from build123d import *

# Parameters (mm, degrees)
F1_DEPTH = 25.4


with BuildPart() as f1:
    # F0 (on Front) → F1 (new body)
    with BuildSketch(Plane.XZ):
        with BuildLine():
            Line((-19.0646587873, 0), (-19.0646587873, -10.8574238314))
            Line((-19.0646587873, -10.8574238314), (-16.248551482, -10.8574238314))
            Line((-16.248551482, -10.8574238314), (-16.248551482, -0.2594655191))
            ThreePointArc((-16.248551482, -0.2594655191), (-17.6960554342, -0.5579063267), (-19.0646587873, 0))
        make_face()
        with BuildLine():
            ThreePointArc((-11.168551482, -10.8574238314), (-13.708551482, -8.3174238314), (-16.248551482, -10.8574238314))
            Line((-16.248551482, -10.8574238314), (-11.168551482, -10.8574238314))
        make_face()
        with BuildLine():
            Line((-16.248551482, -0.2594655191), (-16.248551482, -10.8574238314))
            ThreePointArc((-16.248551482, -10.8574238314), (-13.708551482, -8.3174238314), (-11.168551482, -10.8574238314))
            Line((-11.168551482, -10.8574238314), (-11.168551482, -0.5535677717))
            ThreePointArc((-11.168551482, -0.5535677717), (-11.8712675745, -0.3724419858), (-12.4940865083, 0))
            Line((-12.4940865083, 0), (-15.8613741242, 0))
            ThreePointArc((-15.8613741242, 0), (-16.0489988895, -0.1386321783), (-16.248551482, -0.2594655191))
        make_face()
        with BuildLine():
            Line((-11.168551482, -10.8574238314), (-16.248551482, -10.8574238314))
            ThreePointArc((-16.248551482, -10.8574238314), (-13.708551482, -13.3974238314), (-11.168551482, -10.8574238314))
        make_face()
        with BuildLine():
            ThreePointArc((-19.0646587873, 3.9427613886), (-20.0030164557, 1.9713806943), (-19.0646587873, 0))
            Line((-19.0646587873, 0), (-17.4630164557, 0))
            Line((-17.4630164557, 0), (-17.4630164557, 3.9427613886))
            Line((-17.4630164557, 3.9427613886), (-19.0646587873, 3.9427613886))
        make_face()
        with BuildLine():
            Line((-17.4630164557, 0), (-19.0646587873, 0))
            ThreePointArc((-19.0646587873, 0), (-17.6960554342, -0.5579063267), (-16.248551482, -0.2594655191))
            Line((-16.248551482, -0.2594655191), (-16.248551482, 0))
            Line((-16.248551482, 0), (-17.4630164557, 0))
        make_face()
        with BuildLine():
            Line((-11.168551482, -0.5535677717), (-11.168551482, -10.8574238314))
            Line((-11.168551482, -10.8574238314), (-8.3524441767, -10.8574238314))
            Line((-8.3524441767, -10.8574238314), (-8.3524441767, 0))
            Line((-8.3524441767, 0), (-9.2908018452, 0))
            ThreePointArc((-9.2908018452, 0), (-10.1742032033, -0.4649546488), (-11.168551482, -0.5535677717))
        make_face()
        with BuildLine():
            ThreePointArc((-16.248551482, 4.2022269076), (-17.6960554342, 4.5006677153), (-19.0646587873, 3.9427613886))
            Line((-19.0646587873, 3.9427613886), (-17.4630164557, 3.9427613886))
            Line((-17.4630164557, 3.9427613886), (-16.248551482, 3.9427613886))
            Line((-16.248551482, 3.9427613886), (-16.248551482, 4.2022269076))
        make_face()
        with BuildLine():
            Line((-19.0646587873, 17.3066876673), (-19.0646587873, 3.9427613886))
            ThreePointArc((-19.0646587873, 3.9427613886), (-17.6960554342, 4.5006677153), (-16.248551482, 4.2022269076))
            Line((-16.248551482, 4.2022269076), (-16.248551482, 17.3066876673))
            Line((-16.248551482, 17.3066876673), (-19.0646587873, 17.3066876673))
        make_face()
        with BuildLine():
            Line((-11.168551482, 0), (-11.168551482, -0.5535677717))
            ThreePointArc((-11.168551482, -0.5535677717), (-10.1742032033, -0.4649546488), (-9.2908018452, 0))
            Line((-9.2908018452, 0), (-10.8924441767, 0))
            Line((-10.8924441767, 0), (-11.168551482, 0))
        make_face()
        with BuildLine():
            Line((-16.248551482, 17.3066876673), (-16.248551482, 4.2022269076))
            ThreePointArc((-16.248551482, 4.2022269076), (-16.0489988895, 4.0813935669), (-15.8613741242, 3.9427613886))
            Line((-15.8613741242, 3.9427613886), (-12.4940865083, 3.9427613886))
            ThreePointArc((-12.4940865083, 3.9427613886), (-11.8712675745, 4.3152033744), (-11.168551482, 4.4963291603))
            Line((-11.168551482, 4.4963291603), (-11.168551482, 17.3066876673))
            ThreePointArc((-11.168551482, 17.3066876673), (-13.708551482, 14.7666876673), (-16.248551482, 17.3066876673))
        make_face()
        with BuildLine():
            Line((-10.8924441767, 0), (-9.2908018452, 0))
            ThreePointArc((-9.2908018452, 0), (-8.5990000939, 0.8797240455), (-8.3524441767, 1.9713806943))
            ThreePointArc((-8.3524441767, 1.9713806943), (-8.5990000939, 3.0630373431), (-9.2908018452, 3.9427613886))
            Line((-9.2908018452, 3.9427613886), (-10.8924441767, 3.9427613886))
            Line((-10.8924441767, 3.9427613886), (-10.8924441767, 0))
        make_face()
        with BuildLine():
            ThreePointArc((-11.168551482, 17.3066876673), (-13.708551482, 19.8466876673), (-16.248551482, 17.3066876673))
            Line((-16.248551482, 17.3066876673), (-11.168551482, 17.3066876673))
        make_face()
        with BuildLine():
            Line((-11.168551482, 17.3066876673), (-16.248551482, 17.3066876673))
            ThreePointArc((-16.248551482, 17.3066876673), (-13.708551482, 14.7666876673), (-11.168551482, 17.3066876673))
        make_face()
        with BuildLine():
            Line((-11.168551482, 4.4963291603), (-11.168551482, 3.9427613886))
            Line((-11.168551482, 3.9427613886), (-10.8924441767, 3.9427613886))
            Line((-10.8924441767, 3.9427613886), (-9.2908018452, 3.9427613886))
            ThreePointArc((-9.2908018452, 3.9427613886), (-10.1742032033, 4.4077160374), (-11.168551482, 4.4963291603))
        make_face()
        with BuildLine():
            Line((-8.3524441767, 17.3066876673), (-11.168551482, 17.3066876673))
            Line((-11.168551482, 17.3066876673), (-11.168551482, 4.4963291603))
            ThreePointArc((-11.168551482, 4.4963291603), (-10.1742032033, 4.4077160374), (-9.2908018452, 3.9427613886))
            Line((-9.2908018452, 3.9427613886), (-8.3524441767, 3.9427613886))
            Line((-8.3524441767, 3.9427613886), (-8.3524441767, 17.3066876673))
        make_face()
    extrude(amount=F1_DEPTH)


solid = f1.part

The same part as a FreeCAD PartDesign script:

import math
import FreeCAD as App
import Part
import Sketcher
from FreeCAD import Vector
Q = App.Units.Quantity

doc = App.newDocument("Part")
params = doc.addObject("Spreadsheet::Sheet", "Params")
for row, (alias, value) in enumerate([
    ("sketch1_radius", "0.1 in"),
    ("pad1_length", "1 in"),
], start=1):
    params.set(f"A{row}", alias)
    params.set(f"B{row}", "=" + value)
    params.setAlias(f"B{row}", alias)

body = doc.addObject("PartDesign::Body", "Body")

# Sketch on XZ plane
sketch1 = body.newObject("Sketcher::SketchObject", "Sketch")
sketch1.AttachmentSupport = (doc.getObject("XZ_Plane"), [""])
sketch1.MapMode = "FlatFace"
sketch1.addGeometry(Part.ArcOfCircle(Part.Circle(Vector(-10.892444, 1.971381, 0), Vector(0, 0, 1), 2.54), math.radians(0), math.radians(50.90797)), False)
sketch1.addGeometry(Part.LineSegment(Vector(-9.290802, 3.942761, 0), Vector(-8.352444, 3.942761, 0)), False)
sketch1.addGeometry(Part.LineSegment(Vector(-8.352444, 3.942761, 0), Vector(-8.352444, 17.306688, 0)), False)
sketch1.addGeometry(Part.LineSegment(Vector(-8.352444, 17.306688, 0), Vector(-11.168551, 17.306688, 0)), False)
sketch1.addGeometry(Part.ArcOfCircle(Part.Circle(Vector(-13.708551, 17.306688, 0), Vector(0, 0, 1), 2.54), math.radians(0), math.radians(180)), False)
sketch1.addGeometry(Part.LineSegment(Vector(-16.248551, 17.306688, 0), Vector(-19.064659, 17.306688, 0)), False)
sketch1.addGeometry(Part.LineSegment(Vector(-19.064659, 17.306688, 0), Vector(-19.064659, 3.942761, 0)), False)
sketch1.addGeometry(Part.ArcOfCircle(Part.Circle(Vector(-17.463016, 1.971381, 0), Vector(0, 0, 1), 2.54), math.radians(129.09203), math.radians(230.90797)), False)
sketch1.addGeometry(Part.LineSegment(Vector(-19.064659, 0, 0), Vector(-19.064659, -10.857424, 0)), False)
sketch1.addGeometry(Part.LineSegment(Vector(-19.064659, -10.857424, 0), Vector(-16.248551, -10.857424, 0)), False)
sketch1.addGeometry(Part.ArcOfCircle(Part.Circle(Vector(-13.708551, -10.857424, 0), Vector(0, 0, 1), 2.54), math.radians(180), math.radians(360)), False)
sketch1.addGeometry(Part.LineSegment(Vector(-11.168551, -10.857424, 0), Vector(-8.352444, -10.857424, 0)), False)
sketch1.addGeometry(Part.LineSegment(Vector(-8.352444, -10.857424, 0), Vector(-8.352444, 0, 0)), False)
sketch1.addGeometry(Part.LineSegment(Vector(-8.352444, 0, 0), Vector(-9.290802, 0, 0)), False)
sketch1.addGeometry(Part.ArcOfCircle(Part.Circle(Vector(-10.892444, 1.971381, 0), Vector(0, 0, 1), 2.54), math.radians(-50.90797), math.radians(0)), False)
sketch1.addGeometry(Part.ArcOfCircle(Part.Circle(Vector(-10.892444, 1.971381, 0), Vector(0, 0, 1), 2.54), math.radians(96.240593), math.radians(129.09203)), False)
sketch1.addGeometry(Part.LineSegment(Vector(-11.168551, 4.496329, 0), Vector(-11.168551, 3.942761, 0)), False)
sketch1.addGeometry(Part.LineSegment(Vector(-11.168551, 3.942761, 0), Vector(-10.892444, 3.942761, 0)), False)
sketch1.addGeometry(Part.LineSegment(Vector(-10.892444, 3.942761, 0), Vector(-10.892444, 0, 0)), False)
sketch1.addGeometry(Part.LineSegment(Vector(-10.892444, 0, 0), Vector(-11.168551, 0, 0)), False)
sketch1.addGeometry(Part.LineSegment(Vector(-11.168551, 0, 0), Vector(-11.168551, -0.553568, 0)), False)
sketch1.addGeometry(Part.ArcOfCircle(Part.Circle(Vector(-10.892444, 1.971381, 0), Vector(0, 0, 1), 2.54), math.radians(-129.09203), math.radians(-96.240593)), False)
sketch1.addGeometry(Part.LineSegment(Vector(-12.494087, 0, 0), Vector(-15.861374, 0, 0)), False)
sketch1.addGeometry(Part.ArcOfCircle(Part.Circle(Vector(-17.463016, 1.971381, 0), Vector(0, 0, 1), 2.54), math.radians(-61.43628), math.radians(-50.90797)), False)
sketch1.addGeometry(Part.LineSegment(Vector(-16.248551, -0.259466, 0), Vector(-16.248551, 0, 0)), False)
sketch1.addGeometry(Part.LineSegment(Vector(-16.248551, 0, 0), Vector(-17.463016, 0, 0)), False)
sketch1.addGeometry(Part.LineSegment(Vector(-17.463016, 0, 0), Vector(-17.463016, 3.942761, 0)), False)
sketch1.addGeometry(Part.LineSegment(Vector(-17.463016, 3.942761, 0), Vector(-16.248551, 3.942761, 0)), False)
sketch1.addGeometry(Part.LineSegment(Vector(-16.248551, 3.942761, 0), Vector(-16.248551, 4.202227, 0)), False)
sketch1.addGeometry(Part.ArcOfCircle(Part.Circle(Vector(-17.463016, 1.971381, 0), Vector(0, 0, 1), 2.54), math.radians(50.90797), math.radians(61.43628)), False)
sketch1.addGeometry(Part.LineSegment(Vector(-15.861374, 3.942761, 0), Vector(-12.494087, 3.942761, 0)), False)
sketch1.addConstraint(Sketcher.Constraint("Coincident", 0, 2, 1, 1))
sketch1.addConstraint(Sketcher.Constraint("Coincident", 1, 2, 2, 1))
sketch1.addConstraint(Sketcher.Constraint("Coincident", 2, 2, 3, 1))
sketch1.addConstraint(Sketcher.Constraint("Coincident", 3, 2, 4, 1))
sketch1.addConstraint(Sketcher.Constraint("Coincident", 4, 2, 5, 1))
sketch1.addConstraint(Sketcher.Constraint("Coincident", 5, 2, 6, 1))
sketch1.addConstraint(Sketcher.Constraint("Coincident", 6, 2, 7, 1))
sketch1.addConstraint(Sketcher.Constraint("Coincident", 7, 2, 8, 1))
sketch1.addConstraint(Sketcher.Constraint("Coincident", 8, 2, 9, 1))
sketch1.addConstraint(Sketcher.Constraint("Coincident", 9, 2, 10, 1))
sketch1.addConstraint(Sketcher.Constraint("Coincident", 10, 2, 11, 1))
sketch1.addConstraint(Sketcher.Constraint("Coincident", 11, 2, 12, 1))
sketch1.addConstraint(Sketcher.Constraint("Coincident", 12, 2, 13, 1))
sketch1.addConstraint(Sketcher.Constraint("Coincident", 13, 2, 14, 1))
sketch1.addConstraint(Sketcher.Constraint("Tangent", 14, 2, 0, 1))
sketch1.addConstraint(Sketcher.Constraint("Coincident", 15, 1, 16, 1))
sketch1.addConstraint(Sketcher.Constraint("Coincident", 16, 2, 17, 1))
sketch1.addConstraint(Sketcher.Constraint("Coincident", 17, 2, 18, 1))
sketch1.addConstraint(Sketcher.Constraint("Coincident", 18, 2, 19, 1))
sketch1.addConstraint(Sketcher.Constraint("Coincident", 19, 2, 20, 1))
sketch1.addConstraint(Sketcher.Constraint("Coincident", 20, 2, 21, 2))
sketch1.addConstraint(Sketcher.Constraint("Coincident", 21, 1, 22, 1))
sketch1.addConstraint(Sketcher.Constraint("Coincident", 22, 2, 23, 2))
sketch1.addConstraint(Sketcher.Constraint("Coincident", 23, 1, 24, 1))
sketch1.addConstraint(Sketcher.Constraint("Coincident", 24, 2, 25, 1))
sketch1.addConstraint(Sketcher.Constraint("Coincident", 25, 2, 26, 1))
sketch1.addConstraint(Sketcher.Constraint("Coincident", 26, 2, 27, 1))
sketch1.addConstraint(Sketcher.Constraint("Coincident", 27, 2, 28, 1))
sketch1.addConstraint(Sketcher.Constraint("Coincident", 28, 2, 29, 2))
sketch1.addConstraint(Sketcher.Constraint("Coincident", 29, 1, 30, 1))
sketch1.addConstraint(Sketcher.Constraint("Coincident", 30, 2, 15, 2))
sketch1.addConstraint(Sketcher.Constraint("Horizontal", 1))
sketch1.addConstraint(Sketcher.Constraint("Vertical", 2))
sketch1.addConstraint(Sketcher.Constraint("Horizontal", 3))
sketch1.addConstraint(Sketcher.Constraint("Horizontal", 5))
sketch1.addConstraint(Sketcher.Constraint("Vertical", 6))
sketch1.addConstraint(Sketcher.Constraint("Vertical", 8))
sketch1.addConstraint(Sketcher.Constraint("Horizontal", 9))
sketch1.addConstraint(Sketcher.Constraint("Horizontal", 11))
sketch1.addConstraint(Sketcher.Constraint("Vertical", 12))
sketch1.addConstraint(Sketcher.Constraint("Horizontal", 13))
sketch1.addConstraint(Sketcher.Constraint("Vertical", 16))
sketch1.addConstraint(Sketcher.Constraint("Horizontal", 17))
sketch1.addConstraint(Sketcher.Constraint("Vertical", 18))
sketch1.addConstraint(Sketcher.Constraint("Horizontal", 19))
sketch1.addConstraint(Sketcher.Constraint("Vertical", 20))
sketch1.addConstraint(Sketcher.Constraint("Horizontal", 22))
sketch1.addConstraint(Sketcher.Constraint("Vertical", 24))
sketch1.addConstraint(Sketcher.Constraint("Horizontal", 25))
sketch1.addConstraint(Sketcher.Constraint("Vertical", 26))
sketch1.addConstraint(Sketcher.Constraint("Horizontal", 27))
sketch1.addConstraint(Sketcher.Constraint("Vertical", 28))
sketch1.addConstraint(Sketcher.Constraint("Horizontal", 30))
sketch1.addConstraint(Sketcher.Constraint("Coincident", 15, 3, 0, 3))
sketch1.addConstraint(Sketcher.Constraint("Coincident", 21, 3, 0, 3))
sketch1.addConstraint(Sketcher.Constraint("Coincident", 23, 3, 7, 3))
sketch1.addConstraint(Sketcher.Constraint("Coincident", 29, 3, 7, 3))
sketch1.addConstraint(Sketcher.Constraint("Equal", 0, 4))
sketch1.addConstraint(Sketcher.Constraint("Equal", 4, 7))
sketch1.addConstraint(Sketcher.Constraint("Equal", 7, 10))
sketch1.addConstraint(Sketcher.Constraint("Equal", 10, 14))
sketch1.addConstraint(Sketcher.Constraint("Equal", 14, 15))
sketch1.addConstraint(Sketcher.Constraint("Equal", 15, 21))
sketch1.addConstraint(Sketcher.Constraint("Equal", 21, 23))
sketch1.addConstraint(Sketcher.Constraint("Equal", 23, 29))
sketch1.addConstraint(Sketcher.Constraint("PointOnObject", 7, 2, -1))
sketch1.addConstraint(Sketcher.Constraint("PointOnObject", 12, 2, -1))
sketch1.addConstraint(Sketcher.Constraint("PointOnObject", 18, 2, -1))
sketch1.addConstraint(Sketcher.Constraint("PointOnObject", 21, 1, -1))
sketch1.addConstraint(Sketcher.Constraint("PointOnObject", 24, 2, -1))
sketch1.addConstraint(Sketcher.Constraint("Horizontal", 0, 3, 7, 3))
sketch1.addConstraint(Sketcher.Constraint("Horizontal", 4, 3, 2, 2))
sketch1.addConstraint(Sketcher.Constraint("Horizontal", 3, 2, 4, 2))
sketch1.addConstraint(Sketcher.Constraint("Horizontal", 1, 2, 6, 2))
sketch1.addConstraint(Sketcher.Constraint("Horizontal", 10, 3, 8, 2))
sketch1.addConstraint(Sketcher.Constraint("Horizontal", 9, 2, 10, 2))
sketch1.addConstraint(Sketcher.Constraint("Horizontal", 29, 3, 14, 2))
sketch1.addConstraint(Sketcher.Constraint("Horizontal", 6, 2, 16, 2))
sketch1.addConstraint(Sketcher.Constraint("Horizontal", 17, 2, 26, 2))
sketch1.addConstraint(Sketcher.Constraint("Horizontal", 27, 2, 29, 1))
sketch1.addConstraint(Sketcher.Constraint("Vertical", 4, 3, 10, 3))
sketch1.addConstraint(Sketcher.Constraint("Vertical", 6, 2, 7, 2))
sketch1.addConstraint(Sketcher.Constraint("Vertical", 2, 2, 11, 2))
sketch1.addConstraint(Sketcher.Constraint("Vertical", 12, 2, 14, 2))
sketch1.addConstraint(Sketcher.Constraint("Vertical", 10, 2, 15, 1))
sketch1.addConstraint(Sketcher.Constraint("Vertical", 21, 3, 17, 2))
sketch1.addConstraint(Sketcher.Constraint("Vertical", 16, 2, 19, 2))
sketch1.addConstraint(Sketcher.Constraint("Vertical", 9, 2, 23, 1))
sketch1.addConstraint(Sketcher.Constraint("Vertical", 29, 3, 25, 2))
sketch1.addConstraint(Sketcher.Constraint("Vertical", 24, 2, 27, 2))
sketch1.addConstraint(Sketcher.Constraint("Equal", 3, 5))
sketch1.addConstraint(Sketcher.Constraint("Radius", 0, Q("0.1 in")))
sketch1.addConstraint(Sketcher.Constraint("DistanceY", 18, 2, 18, 1, 3.942761))
sketch1.addConstraint(Sketcher.Constraint("DistanceX", 0, 2, -1, 1, 9.290802))
sketch1.addConstraint(Sketcher.Constraint("DistanceX", 3, 2, 3, 1, 2.816107))
sketch1.addConstraint(Sketcher.Constraint("DistanceY", 2, 1, 2, 2, 13.363926))
sketch1.addConstraint(Sketcher.Constraint("DistanceY", 8, 2, 8, 1, 10.857424))
sketch1.setExpression("Constraints[91]", "Params.sketch1_radius")
pad1 = body.newObject("PartDesign::Pad", "Pad")
pad1.Profile = sketch1
pad1.setExpression("Length", "Params.pad1_length")

doc.recompute()
